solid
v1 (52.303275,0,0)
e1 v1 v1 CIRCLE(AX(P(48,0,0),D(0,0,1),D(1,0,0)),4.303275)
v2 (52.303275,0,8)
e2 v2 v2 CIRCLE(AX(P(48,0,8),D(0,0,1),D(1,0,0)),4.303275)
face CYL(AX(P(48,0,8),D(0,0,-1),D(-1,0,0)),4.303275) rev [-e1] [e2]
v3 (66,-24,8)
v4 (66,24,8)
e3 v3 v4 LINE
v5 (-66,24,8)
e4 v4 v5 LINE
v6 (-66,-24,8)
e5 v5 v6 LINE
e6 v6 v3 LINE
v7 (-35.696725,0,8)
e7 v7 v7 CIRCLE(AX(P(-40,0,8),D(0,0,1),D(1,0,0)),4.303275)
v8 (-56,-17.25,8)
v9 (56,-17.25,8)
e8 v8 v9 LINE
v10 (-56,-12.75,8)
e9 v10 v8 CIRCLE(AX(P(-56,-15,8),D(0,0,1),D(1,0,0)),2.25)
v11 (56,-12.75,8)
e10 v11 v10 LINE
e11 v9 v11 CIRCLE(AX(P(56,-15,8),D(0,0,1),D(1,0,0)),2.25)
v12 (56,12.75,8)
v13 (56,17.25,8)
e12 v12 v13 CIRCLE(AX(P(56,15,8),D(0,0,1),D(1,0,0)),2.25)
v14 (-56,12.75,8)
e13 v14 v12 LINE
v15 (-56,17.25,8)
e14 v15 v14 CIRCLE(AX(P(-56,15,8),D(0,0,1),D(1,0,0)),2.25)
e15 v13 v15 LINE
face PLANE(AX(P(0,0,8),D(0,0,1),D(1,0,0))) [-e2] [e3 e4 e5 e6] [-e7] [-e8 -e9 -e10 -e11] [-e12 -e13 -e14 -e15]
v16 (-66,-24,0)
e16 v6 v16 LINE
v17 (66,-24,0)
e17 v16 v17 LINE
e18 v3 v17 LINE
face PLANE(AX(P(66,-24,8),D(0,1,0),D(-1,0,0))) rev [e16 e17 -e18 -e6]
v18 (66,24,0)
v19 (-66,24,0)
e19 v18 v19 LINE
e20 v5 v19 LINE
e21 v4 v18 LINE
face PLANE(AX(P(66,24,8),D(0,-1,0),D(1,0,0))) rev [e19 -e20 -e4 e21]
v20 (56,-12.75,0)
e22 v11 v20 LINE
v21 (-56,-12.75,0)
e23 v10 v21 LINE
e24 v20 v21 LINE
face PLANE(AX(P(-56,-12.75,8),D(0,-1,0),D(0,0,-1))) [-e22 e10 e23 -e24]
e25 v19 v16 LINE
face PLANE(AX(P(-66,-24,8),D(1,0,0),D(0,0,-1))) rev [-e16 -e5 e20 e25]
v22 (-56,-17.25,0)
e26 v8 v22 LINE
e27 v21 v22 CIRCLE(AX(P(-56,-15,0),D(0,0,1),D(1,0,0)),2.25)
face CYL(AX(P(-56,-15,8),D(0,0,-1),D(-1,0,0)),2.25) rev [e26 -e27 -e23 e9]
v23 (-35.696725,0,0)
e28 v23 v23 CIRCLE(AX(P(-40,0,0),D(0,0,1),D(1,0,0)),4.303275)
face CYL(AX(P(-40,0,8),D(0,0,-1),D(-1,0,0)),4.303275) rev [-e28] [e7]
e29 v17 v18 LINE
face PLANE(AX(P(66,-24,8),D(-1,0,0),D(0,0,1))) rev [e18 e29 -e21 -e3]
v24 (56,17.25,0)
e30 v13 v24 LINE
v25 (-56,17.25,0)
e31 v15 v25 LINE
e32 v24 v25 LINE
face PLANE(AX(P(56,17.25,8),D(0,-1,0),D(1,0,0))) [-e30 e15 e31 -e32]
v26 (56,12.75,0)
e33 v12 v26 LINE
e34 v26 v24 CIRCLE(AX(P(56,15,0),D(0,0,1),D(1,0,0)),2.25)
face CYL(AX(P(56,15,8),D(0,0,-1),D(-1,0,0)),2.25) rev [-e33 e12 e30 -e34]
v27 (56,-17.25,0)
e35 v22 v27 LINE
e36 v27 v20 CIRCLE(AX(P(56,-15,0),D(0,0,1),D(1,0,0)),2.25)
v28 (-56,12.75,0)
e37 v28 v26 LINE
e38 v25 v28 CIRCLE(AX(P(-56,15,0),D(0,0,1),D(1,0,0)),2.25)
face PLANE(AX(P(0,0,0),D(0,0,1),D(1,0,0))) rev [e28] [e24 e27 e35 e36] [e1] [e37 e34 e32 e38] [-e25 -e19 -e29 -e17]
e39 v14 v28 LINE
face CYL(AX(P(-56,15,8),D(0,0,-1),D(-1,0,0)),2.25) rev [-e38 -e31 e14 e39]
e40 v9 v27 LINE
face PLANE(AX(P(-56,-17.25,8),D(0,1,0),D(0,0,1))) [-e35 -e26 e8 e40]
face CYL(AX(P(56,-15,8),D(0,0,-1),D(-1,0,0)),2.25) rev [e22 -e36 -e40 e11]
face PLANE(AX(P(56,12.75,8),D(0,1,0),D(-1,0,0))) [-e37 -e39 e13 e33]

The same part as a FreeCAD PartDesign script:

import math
import FreeCAD as App
import Part
import Sketcher
from FreeCAD import Vector
Q = App.Units.Quantity


def add_polygon(sketch, points):
    """Adds a closed chain of lines whose ends are joined by coincident constraints."""
    first, n = sketch.GeometryCount, len(points)
    for a, b in zip(points, points[1:] + points[:1]):
        sketch.addGeometry(Part.LineSegment(App.Vector(*a, 0), App.Vector(*b, 0)), False)
    for i in range(n):
        sketch.addConstraint(Sketcher.Constraint("Coincident", first + i, 2, first + (i + 1) % n, 1))

doc = App.newDocument("Part")
body = doc.addObject("PartDesign::Body", "Body")

sketch1 = body.newObject("Sketcher::SketchObject", "Sketch")
sketch1.AttachmentSupport = (doc.getObject("XY_Plane"), [""])
sketch1.MapMode = "FlatFace"
add_polygon(sketch1, [(-66, 24), (-66, -24), (66, -24), (66, 24)])
sketch1.addGeometry(Part.ArcOfCircle(Part.Circle(Vector(-56, -15, 0), Vector(0, 0, 1), 2.2), math.radians(90), math.radians(270)), False)
sketch1.addGeometry(Part.LineSegment(Vector(-56, -12.8, 0), Vector(56, -12.8, 0)), False)
sketch1.addGeometry(Part.ArcOfCircle(Part.Circle(Vector(56, -15, 0), Vector(0, 0, 1), 2.2), math.radians(-90), math.radians(90)), False)
sketch1.addGeometry(Part.LineSegment(Vector(56, -17.2, 0), Vector(-56, -17.2, 0)), False)
sketch1.addGeometry(Part.Circle(Vector(-40, 0, 0), Vector(0, 0, 1), 4.3), False)
sketch1.addGeometry(Part.Circle(Vector(48, 0, 0), Vector(0, 0, 1), 4.3), False)
sketch1.addGeometry(Part.ArcOfCircle(Part.Circle(Vector(56, 15, 0), Vector(0, 0, 1), 2.2), math.radians(-90), math.radians(90)), False)
sketch1.addGeometry(Part.LineSegment(Vector(56, 12.8, 0), Vector(-56, 12.8, 0)), False)
sketch1.addGeometry(Part.ArcOfCircle(Part.Circle(Vector(-56, 15, 0), Vector(0, 0, 1), 2.2), math.radians(90), math.radians(270)), False)
sketch1.addGeometry(Part.LineSegment(Vector(-56, 17.2, 0), Vector(56, 17.2, 0)), False)
sketch1.addConstraint([
    Sketcher.Constraint("Tangent", 4, 1, 5, 1),
    Sketcher.Constraint("Tangent", 5, 2, 6, 2),
    Sketcher.Constraint("Tangent", 6, 1, 7, 1),
    Sketcher.Constraint("Tangent", 7, 2, 4, 2),
    Sketcher.Constraint("Tangent", 10, 1, 11, 1),
    Sketcher.Constraint("Tangent", 11, 2, 12, 2),
    Sketcher.Constraint("Tangent", 12, 1, 13, 1),
    Sketcher.Constraint("Tangent", 13, 2, 10, 2),
    Sketcher.Constraint("Vertical", 0),
    Sketcher.Constraint("Horizontal", 1),
    Sketcher.Constraint("Vertical", 2),
    Sketcher.Constraint("Horizontal", 3),
    Sketcher.Constraint("Horizontal", 5),
    Sketcher.Constraint("Horizontal", 7),
    Sketcher.Constraint("Horizontal", 11),
    Sketcher.Constraint("Horizontal", 13),
    Sketcher.Constraint("Equal", 8, 9),
    Sketcher.Constraint("Equal", 6, 10),
    Sketcher.Constraint("Symmetric", 4, 3, 10, 3, -1, 1),
    Sketcher.Constraint("Symmetric", 0, 2, 2, 2, -1, 1),
    Sketcher.Constraint("PointOnObject", 8, 3, -1),
    Sketcher.Constraint("PointOnObject", 9, 3, -1),
    Sketcher.Constraint("Vertical", 6, 3, 10, 3),
    Sketcher.Constraint("Vertical", 4, 3, 12, 3),
    Sketcher.Constraint("DistanceX", 1, 1, 1, 2, Q("132 mm")),
    Sketcher.Constraint("DistanceX", 5, 1, 5, 2, Q("112 mm")),
    Sketcher.Constraint("DistanceY", 0, 2, 0, 1, Q("48 mm")),
    Sketcher.Constraint("Radius", 4, Q("2.25 mm")),
    Sketcher.Constraint("DistanceY", 4, 3, -1, 1, Q("15 mm")),
    Sketcher.Constraint("DistanceX", 8, 3, -1, 1, Q("40 mm")),
    Sketcher.Constraint("DistanceX", -1, 1, 9, 3, Q("48 mm")),
    Sketcher.Constraint("Diameter", 8, Q("8.606551 mm")),
])
pad1 = body.newObject("PartDesign::Pad", "Pad")
pad1.Profile = sketch1
pad1.Length = 8

doc.recompute()
